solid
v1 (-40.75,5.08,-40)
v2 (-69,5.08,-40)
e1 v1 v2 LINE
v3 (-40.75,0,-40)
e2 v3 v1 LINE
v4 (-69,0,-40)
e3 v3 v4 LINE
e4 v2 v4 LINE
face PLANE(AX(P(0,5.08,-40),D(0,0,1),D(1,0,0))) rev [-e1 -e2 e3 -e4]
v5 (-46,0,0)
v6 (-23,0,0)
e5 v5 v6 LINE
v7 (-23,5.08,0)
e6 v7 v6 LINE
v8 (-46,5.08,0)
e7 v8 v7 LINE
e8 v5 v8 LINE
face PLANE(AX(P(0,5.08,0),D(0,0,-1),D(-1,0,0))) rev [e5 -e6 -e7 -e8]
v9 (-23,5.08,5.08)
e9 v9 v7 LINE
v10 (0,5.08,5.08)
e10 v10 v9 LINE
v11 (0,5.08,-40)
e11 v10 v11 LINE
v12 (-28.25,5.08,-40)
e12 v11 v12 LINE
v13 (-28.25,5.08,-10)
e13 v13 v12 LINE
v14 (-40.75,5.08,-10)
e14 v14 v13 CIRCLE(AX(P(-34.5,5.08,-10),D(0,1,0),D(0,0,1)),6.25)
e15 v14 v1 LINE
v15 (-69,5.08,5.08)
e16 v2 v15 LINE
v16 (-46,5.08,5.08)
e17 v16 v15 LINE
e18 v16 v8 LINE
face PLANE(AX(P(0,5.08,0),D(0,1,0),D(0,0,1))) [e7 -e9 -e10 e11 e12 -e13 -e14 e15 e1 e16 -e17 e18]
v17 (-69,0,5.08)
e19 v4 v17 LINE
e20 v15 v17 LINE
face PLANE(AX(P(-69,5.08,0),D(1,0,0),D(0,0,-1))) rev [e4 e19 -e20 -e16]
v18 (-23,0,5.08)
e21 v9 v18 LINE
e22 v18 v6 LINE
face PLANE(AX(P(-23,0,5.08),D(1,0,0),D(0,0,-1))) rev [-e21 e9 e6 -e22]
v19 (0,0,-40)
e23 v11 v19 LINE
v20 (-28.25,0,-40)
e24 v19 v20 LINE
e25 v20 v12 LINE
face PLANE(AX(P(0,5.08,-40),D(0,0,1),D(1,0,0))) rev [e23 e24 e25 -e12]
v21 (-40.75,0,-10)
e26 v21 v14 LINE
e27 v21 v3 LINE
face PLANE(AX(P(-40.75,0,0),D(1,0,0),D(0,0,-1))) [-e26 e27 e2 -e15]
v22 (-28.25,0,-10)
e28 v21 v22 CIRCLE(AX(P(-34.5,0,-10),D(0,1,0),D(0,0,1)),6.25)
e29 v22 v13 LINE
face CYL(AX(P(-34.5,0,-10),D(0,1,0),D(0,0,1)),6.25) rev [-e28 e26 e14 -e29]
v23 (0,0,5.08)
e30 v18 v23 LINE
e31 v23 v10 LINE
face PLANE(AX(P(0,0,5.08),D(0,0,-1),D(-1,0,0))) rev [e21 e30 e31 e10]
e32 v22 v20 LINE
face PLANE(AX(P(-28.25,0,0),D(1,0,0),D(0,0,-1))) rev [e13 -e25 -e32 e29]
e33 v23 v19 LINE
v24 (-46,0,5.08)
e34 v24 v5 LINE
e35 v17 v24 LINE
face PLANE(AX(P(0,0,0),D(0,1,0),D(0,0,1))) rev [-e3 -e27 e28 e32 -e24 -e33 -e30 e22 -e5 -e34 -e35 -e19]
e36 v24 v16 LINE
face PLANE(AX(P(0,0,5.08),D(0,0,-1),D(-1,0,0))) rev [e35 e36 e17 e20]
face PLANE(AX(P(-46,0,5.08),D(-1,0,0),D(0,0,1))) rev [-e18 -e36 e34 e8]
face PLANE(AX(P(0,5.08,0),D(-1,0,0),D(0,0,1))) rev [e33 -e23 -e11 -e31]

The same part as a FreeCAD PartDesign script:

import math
import FreeCAD as App
import Part
import Sketcher
Q = App.Units.Quantity


def add_polygon(sketch, points):
    """Adds a closed chain of lines whose ends are joined by coincident constraints."""
    first, n = sketch.GeometryCount, len(points)
    for a, b in zip(points, points[1:] + points[:1]):
        sketch.addGeometry(Part.LineSegment(App.Vector(*a, 0), App.Vector(*b, 0)), False)
    for i in range(n):
        sketch.addConstraint(Sketcher.Constraint("Coincident", first + i, 2, first + (i + 1) % n, 1))

doc = App.newDocument("Part")
body = doc.addObject("PartDesign::Body", "Body")

# Sketch on XZ plane
sketch1 = doc.addObject("Sketcher::SketchObject", "Sketch")
body.addObject(sketch1)
sketch1.AttachmentSupport = (doc.XZ_Plane, [""])
sketch1.MapMode = "FlatFace"
add_polygon(sketch1, [(-69, -40), (-69, 0), (0, 0), (0, -40)])  # lines 0-3
sketch1.addConstraint([
    Sketcher.Constraint("Vertical", 0),
    Sketcher.Constraint("Horizontal", 1),
    Sketcher.Constraint("Vertical", 2),
    Sketcher.Constraint("Horizontal", 3),
    Sketcher.Constraint("Coincident", 1, 2, -1, 1),
    Sketcher.Constraint("DistanceX", 1, 1, 1, 2, Q("69 mm")),
    Sketcher.Constraint("DistanceY", 0, 1, 0, 2, Q("40 mm")),
])
pad1 = doc.addObject("PartDesign::Pad", "Pad")
body.addObject(pad1)
pad1.Profile = sketch1
pad1.Length = 5.08
pad1.Reversed = True

# Sketch on XY plane
sketch2 = doc.addObject("Sketcher::SketchObject", "Sketch001")
body.addObject(sketch2)
sketch2.AttachmentSupport = (doc.XY_Plane, [""])
sketch2.MapMode = "FlatFace"
add_polygon(sketch2, [(-69, 5), (-69, 0), (-46, 0), (-46, 5)])  # lines 0-3
add_polygon(sketch2, [(-23, 5), (-23, 0), (0, 0), (0, 5)])  # lines 4-7
sketch2.addConstraint([
    Sketcher.Constraint("Vertical", 0),
    Sketcher.Constraint("Horizontal", 1),
    Sketcher.Constraint("Vertical", 2),
    Sketcher.Constraint("Horizontal", 3),
    Sketcher.Constraint("Vertical", 4),
    Sketcher.Constraint("Horizontal", 5),
    Sketcher.Constraint("Vertical", 6),
    Sketcher.Constraint("Horizontal", 7),
    Sketcher.Constraint("Coincident", 5, 2, -1, 1),
    Sketcher.Constraint("PointOnObject", 0, 2, -1),
    Sketcher.Constraint("Horizontal", 3, 2, 6, 2),
    Sketcher.Constraint("Equal", 3, 5),
    Sketcher.Constraint("DistanceX", 1, 1, 1, 2, Q("23 mm")),
    Sketcher.Constraint("DistanceX", 0, 2, -1, 1, Q("69 mm")),
    Sketcher.Constraint("DistanceY", 0, 2, 0, 1, Q("5.08 mm")),
])
pad2 = doc.addObject("PartDesign::Pad", "Pad001")
body.addObject(pad2)
pad2.Profile = sketch2
pad2.Length = 5.08

# Sketch on XZ plane
sketch3 = doc.addObject("Sketcher::SketchObject", "Sketch002")
body.addObject(sketch3)
sketch3.AttachmentSupport = (doc.XZ_Plane, [""])
sketch3.MapMode = "FlatFace"
sketch3.AttachmentOffset = App.Placement(App.Vector(0, 0, -5.08), App.Rotation())
sketch3.addGeometry([
    Part.ArcOfCircle(Part.Circle(App.Vector(-34, -10, 0), App.Vector(0, 0, 1), 6), math.radians(0), math.radians(180)),
    Part.LineSegment(App.Vector(-28, -10, 0), App.Vector(-28, -40, 0)),
    Part.LineSegment(App.Vector(-28, -40, 0), App.Vector(-41, -40, 0)),
    Part.LineSegment(App.Vector(-41, -40, 0), App.Vector(-41, -10, 0)),
], False)
sketch3.addConstraint([
    Sketcher.Constraint("Tangent", 0, 1, 1, 1),
    Sketcher.Constraint("Coincident", 1, 2, 2, 1),
    Sketcher.Constraint("Coincident", 2, 2, 3, 1),
    Sketcher.Constraint("Tangent", 3, 2, 0, 2),
    Sketcher.Constraint("Vertical", 1),
    Sketcher.Constraint("Horizontal", 2),
    Sketcher.Constraint("Vertical", 3),
    Sketcher.Constraint("DistanceY", 1, 2, 1, 1, Q("30 mm")),
    Sketcher.Constraint("Radius", 0, Q("6.25 mm")),
    Sketcher.Constraint("DistanceY", 0, 3, -1, 1, Q("10 mm")),
    Sketcher.Constraint("DistanceX", 0, 3, -1, 1, Q("34.5 mm")),
])
pocket1 = doc.addObject("PartDesign::Pocket", "Pocket")
body.addObject(pocket1)
pocket1.Profile = sketch3
pocket1.Length = 5.08
pocket1.Reversed = True

doc.recompute()
